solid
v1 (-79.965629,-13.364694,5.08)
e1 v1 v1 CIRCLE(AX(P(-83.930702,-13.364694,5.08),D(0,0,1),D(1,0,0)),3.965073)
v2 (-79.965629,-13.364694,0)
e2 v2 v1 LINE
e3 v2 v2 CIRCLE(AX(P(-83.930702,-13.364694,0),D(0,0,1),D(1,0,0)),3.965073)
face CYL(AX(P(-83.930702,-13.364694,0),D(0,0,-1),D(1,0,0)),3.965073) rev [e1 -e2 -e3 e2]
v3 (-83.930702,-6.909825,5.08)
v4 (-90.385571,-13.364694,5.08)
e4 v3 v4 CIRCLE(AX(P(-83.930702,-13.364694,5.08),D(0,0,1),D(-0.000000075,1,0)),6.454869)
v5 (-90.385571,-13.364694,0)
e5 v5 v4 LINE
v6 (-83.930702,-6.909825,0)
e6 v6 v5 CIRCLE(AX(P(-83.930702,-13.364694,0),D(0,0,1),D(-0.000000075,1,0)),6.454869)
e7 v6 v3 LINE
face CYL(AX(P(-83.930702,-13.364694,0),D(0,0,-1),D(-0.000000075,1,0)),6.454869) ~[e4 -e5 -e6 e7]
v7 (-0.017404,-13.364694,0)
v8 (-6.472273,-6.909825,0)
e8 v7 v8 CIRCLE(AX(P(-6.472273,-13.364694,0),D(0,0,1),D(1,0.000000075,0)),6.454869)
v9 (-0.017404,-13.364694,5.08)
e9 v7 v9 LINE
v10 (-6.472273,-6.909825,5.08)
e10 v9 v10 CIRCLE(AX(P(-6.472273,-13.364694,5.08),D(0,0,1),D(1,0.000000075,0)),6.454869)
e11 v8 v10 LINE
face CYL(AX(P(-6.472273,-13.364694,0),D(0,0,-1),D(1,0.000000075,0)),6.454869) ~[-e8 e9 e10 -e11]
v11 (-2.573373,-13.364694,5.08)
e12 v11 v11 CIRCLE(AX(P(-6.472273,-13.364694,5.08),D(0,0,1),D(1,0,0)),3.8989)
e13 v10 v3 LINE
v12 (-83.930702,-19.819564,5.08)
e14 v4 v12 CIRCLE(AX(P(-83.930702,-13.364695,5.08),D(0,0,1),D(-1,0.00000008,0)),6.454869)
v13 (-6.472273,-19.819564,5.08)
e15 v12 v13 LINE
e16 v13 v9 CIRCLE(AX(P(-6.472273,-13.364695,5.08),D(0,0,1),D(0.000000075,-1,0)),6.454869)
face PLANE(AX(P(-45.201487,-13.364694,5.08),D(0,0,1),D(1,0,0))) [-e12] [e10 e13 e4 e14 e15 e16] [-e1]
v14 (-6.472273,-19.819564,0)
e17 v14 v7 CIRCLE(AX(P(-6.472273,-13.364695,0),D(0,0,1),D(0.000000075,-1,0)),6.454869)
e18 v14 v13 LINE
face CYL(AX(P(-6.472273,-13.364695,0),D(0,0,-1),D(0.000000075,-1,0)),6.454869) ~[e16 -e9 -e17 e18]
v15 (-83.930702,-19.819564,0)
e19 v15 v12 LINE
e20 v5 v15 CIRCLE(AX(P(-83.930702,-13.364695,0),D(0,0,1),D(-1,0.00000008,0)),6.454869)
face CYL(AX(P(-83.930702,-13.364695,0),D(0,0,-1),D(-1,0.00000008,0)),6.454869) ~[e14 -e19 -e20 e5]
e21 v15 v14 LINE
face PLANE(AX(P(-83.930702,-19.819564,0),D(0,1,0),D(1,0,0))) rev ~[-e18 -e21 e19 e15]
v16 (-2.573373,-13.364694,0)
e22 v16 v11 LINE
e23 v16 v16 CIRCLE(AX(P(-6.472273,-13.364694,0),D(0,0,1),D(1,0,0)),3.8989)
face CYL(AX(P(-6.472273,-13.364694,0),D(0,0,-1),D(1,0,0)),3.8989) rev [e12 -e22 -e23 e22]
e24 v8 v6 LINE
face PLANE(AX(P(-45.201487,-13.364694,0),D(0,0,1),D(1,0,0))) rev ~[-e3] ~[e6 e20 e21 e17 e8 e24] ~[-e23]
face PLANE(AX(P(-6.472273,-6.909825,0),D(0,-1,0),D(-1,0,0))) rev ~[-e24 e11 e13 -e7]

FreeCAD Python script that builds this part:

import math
import FreeCAD as App
import Part
import Sketcher
from FreeCAD import Vector
Q = App.Units.Quantity

doc = App.newDocument("Part")
params = doc.addObject("Spreadsheet::Sheet", "Params")
for row, (alias, value) in enumerate([
    ("sketch1_diameter", "0.307 in"),
    ("pad1_length", "0.2 in"),
], start=1):
    params.set(f"A{row}", alias)
    params.set(f"B{row}", "=" + value)
    params.setAlias(f"B{row}", alias)

body = doc.addObject("PartDesign::Body", "Body")

# Sketch on XY plane
sketch1 = doc.addObject("Sketcher::SketchObject", "Sketch")
body.addObject(sketch1)
sketch1.AttachmentSupport = (doc.XY_Plane, [""])
sketch1.MapMode = "FlatFace"
sketch1.addGeometry(Part.LineSegment(Vector(-6.472273, -6.909825, 0), Vector(-83.930702, -6.909825, 0)), False)
sketch1.addGeometry(Part.ArcOfCircle(Part.Circle(Vector(-83.930702, -13.364694, 0), Vector(0, 0, 1), 6.454869), math.radians(90.000004), math.radians(179.999996)), False)
sketch1.addGeometry(Part.ArcOfCircle(Part.Circle(Vector(-83.930702, -13.364695, 0), Vector(0, 0, 1), 6.454869), math.radians(179.999995), math.radians(269.999996)), False)
sketch1.addGeometry(Part.LineSegment(Vector(-83.930702, -19.819564, 0), Vector(-6.472273, -19.819564, 0)), False)
sketch1.addGeometry(Part.ArcOfCircle(Part.Circle(Vector(-6.472273, -13.364695, 0), Vector(0, 0, 1), 6.454869), math.radians(-89.999996), math.radians(0.000005)), False)
sketch1.addGeometry(Part.ArcOfCircle(Part.Circle(Vector(-6.472273, -13.364694, 0), Vector(0, 0, 1), 6.454869), math.radians(0.000004), math.radians(89.999996)), False)
sketch1.addGeometry(Part.Circle(Vector(-83.930702, -13.364694, 0), Vector(0, 0, 1), 3.965073), False)
sketch1.addGeometry(Part.Circle(Vector(-6.472273, -13.364694, 0), Vector(0, 0, 1), 3.8989), False)
sketch1.addConstraint(Sketcher.Constraint("Tangent", 0, 2, 1, 1))
sketch1.addConstraint(Sketcher.Constraint("Tangent", 1, 2, 2, 1))
sketch1.addConstraint(Sketcher.Constraint("Tangent", 2, 2, 3, 1))
sketch1.addConstraint(Sketcher.Constraint("Tangent", 3, 2, 4, 1))
sketch1.addConstraint(Sketcher.Constraint("Tangent", 4, 2, 5, 1))
sketch1.addConstraint(Sketcher.Constraint("Tangent", 5, 2, 0, 1))
sketch1.addConstraint(Sketcher.Constraint("Horizontal", 0))
sketch1.addConstraint(Sketcher.Constraint("Horizontal", 3))
sketch1.addConstraint(Sketcher.Constraint("Coincident", 6, 3, 1, 3))
sketch1.addConstraint(Sketcher.Constraint("Coincident", 7, 3, 4, 3))
sketch1.addConstraint(Sketcher.Constraint("Equal", 1, 2))
sketch1.addConstraint(Sketcher.Constraint("Equal", 2, 4))
sketch1.addConstraint(Sketcher.Constraint("Horizontal", 7, 3, 1, 2))
sketch1.addConstraint(Sketcher.Constraint("Horizontal", 1, 2, 4, 2))
sketch1.addConstraint(Sketcher.Constraint("Diameter", 7, Q("0.307 in")))
sketch1.addConstraint(Sketcher.Constraint("Radius", 1, 6.454869))
sketch1.addConstraint(Sketcher.Constraint("Diameter", 6, 7.930146))
sketch1.addConstraint(Sketcher.Constraint("DistanceX", 0, 2, 0, 1, 77.458429))
sketch1.addConstraint(Sketcher.Constraint("DistanceX", 1, 3, -1, 1, 83.930702))
sketch1.addConstraint(Sketcher.Constraint("DistanceY", 1, 3, -1, 1, 13.364694))
sketch1.setExpression("Constraints[14]", "Params.sketch1_diameter")
pad1 = doc.addObject("PartDesign::Pad", "Pad")
body.addObject(pad1)
pad1.Profile = sketch1
pad1.setExpression("Length", "Params.pad1_length")

doc.recompute()
